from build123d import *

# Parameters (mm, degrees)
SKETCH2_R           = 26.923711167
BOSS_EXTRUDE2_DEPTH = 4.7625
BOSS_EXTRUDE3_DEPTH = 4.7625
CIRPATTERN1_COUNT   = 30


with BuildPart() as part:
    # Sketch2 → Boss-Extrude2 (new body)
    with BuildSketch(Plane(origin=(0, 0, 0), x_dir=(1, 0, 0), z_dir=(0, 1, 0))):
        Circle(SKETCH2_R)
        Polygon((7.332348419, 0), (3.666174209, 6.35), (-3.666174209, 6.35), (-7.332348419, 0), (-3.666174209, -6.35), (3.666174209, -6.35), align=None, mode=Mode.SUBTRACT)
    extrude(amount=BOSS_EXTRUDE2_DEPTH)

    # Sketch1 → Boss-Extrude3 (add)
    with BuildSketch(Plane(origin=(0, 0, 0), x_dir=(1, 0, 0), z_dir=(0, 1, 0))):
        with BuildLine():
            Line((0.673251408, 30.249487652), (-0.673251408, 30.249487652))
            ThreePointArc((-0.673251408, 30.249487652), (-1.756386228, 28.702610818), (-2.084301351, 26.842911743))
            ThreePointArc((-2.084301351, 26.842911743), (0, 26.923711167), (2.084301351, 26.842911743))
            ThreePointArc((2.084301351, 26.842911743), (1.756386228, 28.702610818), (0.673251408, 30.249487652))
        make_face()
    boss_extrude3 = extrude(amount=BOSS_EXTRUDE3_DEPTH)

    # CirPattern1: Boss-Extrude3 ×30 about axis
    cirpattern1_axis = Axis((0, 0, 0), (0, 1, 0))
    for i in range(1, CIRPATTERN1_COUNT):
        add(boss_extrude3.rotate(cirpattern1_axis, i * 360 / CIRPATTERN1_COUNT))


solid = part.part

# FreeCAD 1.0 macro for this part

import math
import FreeCAD as App
import Part
import Sketcher
Q = App.Units.Quantity


def add_polygon(sketch, points):
    """Adds a closed chain of lines whose ends are joined by coincident constraints."""
    first, n = sketch.GeometryCount, len(points)
    for a, b in zip(points, points[1:] + points[:1]):
        sketch.addGeometry(Part.LineSegment(App.Vector(*a, 0), App.Vector(*b, 0)), False)
    for i in range(n):
        sketch.addConstraint(Sketcher.Constraint("Coincident", first + i, 2, first + (i + 1) % n, 1))

doc = App.newDocument("Part")
body = doc.addObject("PartDesign::Body", "Body")

# Sketch on XZ plane
sketch1 = body.newObject("Sketcher::SketchObject", "Sketch")
sketch1.AttachmentSupport = (doc.getObject("XZ_Plane"), [""])
sketch1.MapMode = "FlatFace"
sketch1.addGeometry(Part.Circle(App.Vector(0, 0, 0), App.Vector(0, 0, 1), 27), False)  # 0
add_polygon(sketch1, [(4, -6), (7, 0), (4, 6), (-4, 6), (-7, 0), (-4, -6)])  # lines 1-6
sketch1.addConstraint([
    Sketcher.Constraint("Horizontal", 3),
    Sketcher.Constraint("Horizontal", 6),
    Sketcher.Constraint("Coincident", 0, 3, -1, 1),
    Sketcher.Constraint("Symmetric", 1, 2, 4, 2, -1, 1),
    Sketcher.Constraint("Symmetric", 2, 2, 5, 2, -1, 1),
    Sketcher.Constraint("PointOnObject", 1, 2, -1),
    Sketcher.Constraint("Parallel", 1, 4),
    Sketcher.Constraint("Vertical", 3, 2, 5, 2),
    Sketcher.Constraint("Angle", 1, Q("60 deg")),
    Sketcher.Constraint("DistanceY", 5, 2, 3, 2, Q("0.5 in")),
    Sketcher.Constraint("Diameter", 0, 53.847422),
    Sketcher.Constraint("DistanceX", 3, 2, 3, 1, 7.332348),
])
pad1 = body.newObject("PartDesign::Pad", "Pad")
pad1.Profile = sketch1
pad1.Length = Q("0.1875 in")
pad1.Reversed = True

# Sketch on XZ plane
sketch2 = body.newObject("Sketcher::SketchObject", "Sketch001")
sketch2.AttachmentSupport = (doc.getObject("XZ_Plane"), [""])
sketch2.MapMode = "FlatFace"
sketch2.addGeometry([
    Part.LineSegment(App.Vector(0.7, -30.2, 0), App.Vector(-0.7, -30.2, 0)),
    Part.ArcOfCircle(Part.Circle(App.Vector(2.3, -27, 0), App.Vector(0, 0, 1), 4.4), math.radians(177), math.radians(228)),
    Part.ArcOfCircle(Part.Circle(App.Vector(0, 0, 0), App.Vector(0, 0, 1), 26.9), math.radians(-94.44), math.radians(-85.56)),
    Part.ArcOfCircle(Part.Circle(App.Vector(-2.3, -27, 0), App.Vector(0, 0, 1), 4.4), math.radians(-48), math.radians(3)),
], False)
sketch2.addConstraint([
    Sketcher.Constraint("Coincident", 0, 2, 1, 2),
    Sketcher.Constraint("Coincident", 1, 1, 2, 1),
    Sketcher.Constraint("Coincident", 2, 2, 3, 2),
    Sketcher.Constraint("Coincident", 3, 1, 0, 1),
    Sketcher.Constraint("Horizontal", 0),
    Sketcher.Constraint("Coincident", 2, 3, -1, 1),
    Sketcher.Constraint("Equal", 1, 3),
    Sketcher.Constraint("Symmetric", 1, 3, 3, 3, -2),
    Sketcher.Constraint("Radius", 1, 4.36239),
    Sketcher.Constraint("Radius", 2, 26.923711),
    Sketcher.Constraint("DistanceX", 1, 1, -1, 1, 2.084301),
    Sketcher.Constraint("DistanceX", 0, 2, 0, 1, 1.346503),
    Sketcher.Constraint("DistanceY", 0, 2, 3, 3, 3.216291),
])
pad2 = body.newObject("PartDesign::Pad", "Pad001")
pad2.Profile = sketch2
pad2.Length = Q("0.1875 in")
pad2.Reversed = True
doc.recompute()

polarpattern = body.newObject("PartDesign::PolarPattern", "PolarPattern")
polarpattern.Originals = [pad2]
polarpattern.Axis = (doc.getObject("Y_Axis"), [""])
polarpattern.Angle = 360
polarpattern.Occurrences = 30
body.Tip = polarpattern

doc.recompute()
